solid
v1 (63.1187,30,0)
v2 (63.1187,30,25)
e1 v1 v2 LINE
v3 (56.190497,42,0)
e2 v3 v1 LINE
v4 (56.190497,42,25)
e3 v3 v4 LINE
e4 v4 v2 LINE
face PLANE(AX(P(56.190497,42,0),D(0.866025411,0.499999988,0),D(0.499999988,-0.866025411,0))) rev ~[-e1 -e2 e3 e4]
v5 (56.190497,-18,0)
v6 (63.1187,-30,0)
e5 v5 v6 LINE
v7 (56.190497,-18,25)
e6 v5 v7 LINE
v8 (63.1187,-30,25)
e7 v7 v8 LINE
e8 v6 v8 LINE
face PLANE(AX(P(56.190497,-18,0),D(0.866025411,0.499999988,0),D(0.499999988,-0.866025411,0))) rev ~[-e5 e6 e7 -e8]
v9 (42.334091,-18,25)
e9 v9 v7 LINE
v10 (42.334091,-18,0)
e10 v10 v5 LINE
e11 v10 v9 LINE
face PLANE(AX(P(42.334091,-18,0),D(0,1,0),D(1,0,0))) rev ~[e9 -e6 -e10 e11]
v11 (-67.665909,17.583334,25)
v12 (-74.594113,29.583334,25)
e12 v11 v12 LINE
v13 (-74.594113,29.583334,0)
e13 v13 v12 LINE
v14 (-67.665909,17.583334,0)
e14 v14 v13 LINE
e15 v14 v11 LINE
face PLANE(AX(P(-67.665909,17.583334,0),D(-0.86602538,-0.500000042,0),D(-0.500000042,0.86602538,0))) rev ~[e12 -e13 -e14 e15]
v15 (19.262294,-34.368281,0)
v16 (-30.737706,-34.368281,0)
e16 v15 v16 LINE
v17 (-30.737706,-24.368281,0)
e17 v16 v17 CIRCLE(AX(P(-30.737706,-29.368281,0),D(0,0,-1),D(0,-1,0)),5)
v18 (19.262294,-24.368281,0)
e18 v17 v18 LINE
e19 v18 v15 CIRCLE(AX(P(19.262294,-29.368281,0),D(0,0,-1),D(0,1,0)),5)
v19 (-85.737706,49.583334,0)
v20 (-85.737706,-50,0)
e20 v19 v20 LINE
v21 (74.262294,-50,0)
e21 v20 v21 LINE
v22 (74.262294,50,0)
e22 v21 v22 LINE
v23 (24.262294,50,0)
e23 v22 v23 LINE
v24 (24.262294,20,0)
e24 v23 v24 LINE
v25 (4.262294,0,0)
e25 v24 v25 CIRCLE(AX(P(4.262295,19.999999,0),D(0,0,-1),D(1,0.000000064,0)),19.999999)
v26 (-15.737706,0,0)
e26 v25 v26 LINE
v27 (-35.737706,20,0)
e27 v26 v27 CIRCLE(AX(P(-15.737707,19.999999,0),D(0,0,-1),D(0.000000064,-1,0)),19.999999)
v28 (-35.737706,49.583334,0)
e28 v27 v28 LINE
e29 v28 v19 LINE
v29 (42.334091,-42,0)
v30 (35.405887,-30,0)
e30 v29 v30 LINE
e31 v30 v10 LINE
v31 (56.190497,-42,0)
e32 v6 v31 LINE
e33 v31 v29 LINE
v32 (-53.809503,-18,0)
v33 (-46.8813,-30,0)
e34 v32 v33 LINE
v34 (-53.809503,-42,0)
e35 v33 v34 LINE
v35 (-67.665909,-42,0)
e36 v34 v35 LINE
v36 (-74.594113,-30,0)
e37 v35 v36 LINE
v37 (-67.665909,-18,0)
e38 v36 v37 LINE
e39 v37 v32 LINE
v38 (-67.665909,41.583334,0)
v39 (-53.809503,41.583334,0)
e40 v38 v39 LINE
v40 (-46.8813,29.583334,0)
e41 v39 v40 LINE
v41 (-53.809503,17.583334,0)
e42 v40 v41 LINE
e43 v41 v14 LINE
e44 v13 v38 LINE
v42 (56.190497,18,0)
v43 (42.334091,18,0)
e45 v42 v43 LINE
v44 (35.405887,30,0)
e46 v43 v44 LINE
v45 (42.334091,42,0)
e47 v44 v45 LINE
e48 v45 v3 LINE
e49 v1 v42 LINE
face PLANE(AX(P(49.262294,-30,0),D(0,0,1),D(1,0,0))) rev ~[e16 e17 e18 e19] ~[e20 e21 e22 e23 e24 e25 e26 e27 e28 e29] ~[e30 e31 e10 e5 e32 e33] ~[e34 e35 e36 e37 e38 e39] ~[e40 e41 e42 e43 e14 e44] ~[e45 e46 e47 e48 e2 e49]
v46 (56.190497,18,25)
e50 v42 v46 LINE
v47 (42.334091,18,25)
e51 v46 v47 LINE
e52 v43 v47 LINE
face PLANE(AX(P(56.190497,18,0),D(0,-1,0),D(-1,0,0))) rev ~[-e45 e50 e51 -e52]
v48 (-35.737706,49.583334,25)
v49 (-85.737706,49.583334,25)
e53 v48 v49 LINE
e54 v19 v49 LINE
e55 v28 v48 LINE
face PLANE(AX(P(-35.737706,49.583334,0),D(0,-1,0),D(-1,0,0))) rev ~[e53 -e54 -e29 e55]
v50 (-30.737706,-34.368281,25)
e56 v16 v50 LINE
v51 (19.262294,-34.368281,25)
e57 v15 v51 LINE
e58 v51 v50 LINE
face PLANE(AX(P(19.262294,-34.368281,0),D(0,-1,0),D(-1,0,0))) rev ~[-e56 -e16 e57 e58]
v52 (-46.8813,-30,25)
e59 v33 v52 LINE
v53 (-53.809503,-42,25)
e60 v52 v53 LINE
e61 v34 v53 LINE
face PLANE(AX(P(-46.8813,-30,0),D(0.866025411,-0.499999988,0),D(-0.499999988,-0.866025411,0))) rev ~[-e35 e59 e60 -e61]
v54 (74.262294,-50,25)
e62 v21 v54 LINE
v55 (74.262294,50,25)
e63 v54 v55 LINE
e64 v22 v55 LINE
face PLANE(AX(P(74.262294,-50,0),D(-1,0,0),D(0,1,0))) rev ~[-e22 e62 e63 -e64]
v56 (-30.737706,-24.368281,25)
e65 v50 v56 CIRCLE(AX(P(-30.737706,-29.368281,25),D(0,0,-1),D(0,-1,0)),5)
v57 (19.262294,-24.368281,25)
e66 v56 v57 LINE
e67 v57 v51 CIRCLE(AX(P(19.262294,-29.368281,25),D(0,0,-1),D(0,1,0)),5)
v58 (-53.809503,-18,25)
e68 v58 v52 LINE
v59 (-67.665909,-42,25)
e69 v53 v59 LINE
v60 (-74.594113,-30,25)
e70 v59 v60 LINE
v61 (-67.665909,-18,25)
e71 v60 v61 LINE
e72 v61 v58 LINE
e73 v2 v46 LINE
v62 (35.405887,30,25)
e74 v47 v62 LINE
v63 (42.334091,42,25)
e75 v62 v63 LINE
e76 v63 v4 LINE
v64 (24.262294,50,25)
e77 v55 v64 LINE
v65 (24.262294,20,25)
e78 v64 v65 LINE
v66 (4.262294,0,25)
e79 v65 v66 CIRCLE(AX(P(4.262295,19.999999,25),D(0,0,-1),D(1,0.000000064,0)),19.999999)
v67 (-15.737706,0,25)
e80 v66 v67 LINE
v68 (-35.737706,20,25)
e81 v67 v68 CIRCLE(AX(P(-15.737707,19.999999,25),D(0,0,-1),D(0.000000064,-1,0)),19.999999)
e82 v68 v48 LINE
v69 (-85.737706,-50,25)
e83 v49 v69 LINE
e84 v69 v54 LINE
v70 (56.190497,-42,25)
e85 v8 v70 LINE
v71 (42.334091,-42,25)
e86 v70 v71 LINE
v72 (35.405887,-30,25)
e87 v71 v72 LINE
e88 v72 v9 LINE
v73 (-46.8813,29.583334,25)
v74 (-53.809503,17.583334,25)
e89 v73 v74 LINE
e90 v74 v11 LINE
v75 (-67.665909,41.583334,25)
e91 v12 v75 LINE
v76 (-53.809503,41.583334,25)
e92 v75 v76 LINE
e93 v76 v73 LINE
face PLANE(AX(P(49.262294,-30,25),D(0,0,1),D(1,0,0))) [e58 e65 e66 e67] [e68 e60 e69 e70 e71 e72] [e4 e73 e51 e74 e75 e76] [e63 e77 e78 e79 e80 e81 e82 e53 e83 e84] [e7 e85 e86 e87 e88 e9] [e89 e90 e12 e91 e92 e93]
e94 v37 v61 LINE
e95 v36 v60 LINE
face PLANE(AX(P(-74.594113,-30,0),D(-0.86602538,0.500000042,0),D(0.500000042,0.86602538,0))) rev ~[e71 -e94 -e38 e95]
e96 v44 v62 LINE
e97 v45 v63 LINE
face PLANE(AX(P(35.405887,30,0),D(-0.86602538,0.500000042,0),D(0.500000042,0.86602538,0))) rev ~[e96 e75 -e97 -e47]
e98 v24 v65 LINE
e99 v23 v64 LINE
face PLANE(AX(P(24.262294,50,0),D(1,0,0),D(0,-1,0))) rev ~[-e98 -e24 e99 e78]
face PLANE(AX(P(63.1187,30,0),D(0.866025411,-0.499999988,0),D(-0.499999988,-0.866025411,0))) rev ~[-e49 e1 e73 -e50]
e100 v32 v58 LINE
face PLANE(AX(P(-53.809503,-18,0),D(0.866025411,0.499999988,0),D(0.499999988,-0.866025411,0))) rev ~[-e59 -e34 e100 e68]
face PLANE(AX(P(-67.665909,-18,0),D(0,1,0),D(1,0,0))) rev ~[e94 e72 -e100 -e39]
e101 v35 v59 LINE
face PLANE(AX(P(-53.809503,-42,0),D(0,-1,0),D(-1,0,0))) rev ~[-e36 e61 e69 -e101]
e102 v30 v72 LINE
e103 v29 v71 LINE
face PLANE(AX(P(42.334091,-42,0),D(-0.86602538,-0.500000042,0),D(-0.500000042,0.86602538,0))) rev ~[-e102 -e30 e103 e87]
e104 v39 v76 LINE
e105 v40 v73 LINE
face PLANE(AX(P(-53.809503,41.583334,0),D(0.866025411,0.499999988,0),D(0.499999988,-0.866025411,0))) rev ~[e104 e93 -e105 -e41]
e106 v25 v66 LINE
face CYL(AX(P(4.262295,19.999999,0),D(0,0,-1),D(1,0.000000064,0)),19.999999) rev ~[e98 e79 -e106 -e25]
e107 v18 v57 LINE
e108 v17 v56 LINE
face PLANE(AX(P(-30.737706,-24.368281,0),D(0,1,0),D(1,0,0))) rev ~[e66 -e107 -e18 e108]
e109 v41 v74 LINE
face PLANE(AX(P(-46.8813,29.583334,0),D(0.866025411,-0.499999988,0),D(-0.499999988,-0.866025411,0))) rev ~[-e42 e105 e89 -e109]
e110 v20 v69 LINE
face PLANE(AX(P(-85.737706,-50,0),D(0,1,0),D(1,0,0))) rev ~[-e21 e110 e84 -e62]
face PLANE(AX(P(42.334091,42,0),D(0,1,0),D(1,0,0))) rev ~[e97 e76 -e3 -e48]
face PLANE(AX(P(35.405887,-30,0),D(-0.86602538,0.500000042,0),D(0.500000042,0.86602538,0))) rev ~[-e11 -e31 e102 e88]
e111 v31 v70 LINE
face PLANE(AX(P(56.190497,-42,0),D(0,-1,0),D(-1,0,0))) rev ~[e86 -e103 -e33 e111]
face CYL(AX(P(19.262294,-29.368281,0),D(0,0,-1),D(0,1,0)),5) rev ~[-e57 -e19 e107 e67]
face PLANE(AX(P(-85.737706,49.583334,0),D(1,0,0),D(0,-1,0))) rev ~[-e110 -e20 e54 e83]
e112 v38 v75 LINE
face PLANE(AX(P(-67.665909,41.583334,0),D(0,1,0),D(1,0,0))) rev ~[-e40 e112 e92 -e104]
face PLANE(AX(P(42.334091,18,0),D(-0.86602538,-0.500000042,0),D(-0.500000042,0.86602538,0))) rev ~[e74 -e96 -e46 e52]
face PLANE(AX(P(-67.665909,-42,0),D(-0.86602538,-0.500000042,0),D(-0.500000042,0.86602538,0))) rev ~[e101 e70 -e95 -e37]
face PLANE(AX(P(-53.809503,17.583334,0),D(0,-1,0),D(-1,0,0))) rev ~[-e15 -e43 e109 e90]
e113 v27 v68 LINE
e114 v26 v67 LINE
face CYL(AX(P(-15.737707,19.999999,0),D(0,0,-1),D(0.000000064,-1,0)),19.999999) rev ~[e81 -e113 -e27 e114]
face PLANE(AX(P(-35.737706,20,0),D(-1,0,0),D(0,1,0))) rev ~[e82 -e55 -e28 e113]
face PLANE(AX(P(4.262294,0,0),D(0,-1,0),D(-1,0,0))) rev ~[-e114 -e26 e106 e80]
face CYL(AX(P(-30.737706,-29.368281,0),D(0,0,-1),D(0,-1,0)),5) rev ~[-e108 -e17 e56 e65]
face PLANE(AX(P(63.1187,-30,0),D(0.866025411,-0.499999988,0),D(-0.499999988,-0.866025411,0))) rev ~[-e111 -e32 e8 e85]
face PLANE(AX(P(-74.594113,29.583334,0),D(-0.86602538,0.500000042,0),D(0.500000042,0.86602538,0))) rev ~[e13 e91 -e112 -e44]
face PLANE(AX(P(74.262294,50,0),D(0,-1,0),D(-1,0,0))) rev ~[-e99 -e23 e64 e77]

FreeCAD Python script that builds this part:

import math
import FreeCAD as App
import Part
import Sketcher
from FreeCAD import Vector
Q = App.Units.Quantity


def add_polygon(sketch, points):
    """Adds a closed chain of lines whose ends are joined by coincident constraints."""
    first, n = sketch.GeometryCount, len(points)
    for a, b in zip(points, points[1:] + points[:1]):
        sketch.addGeometry(Part.LineSegment(App.Vector(*a, 0), App.Vector(*b, 0)), False)
    for i in range(n):
        sketch.addConstraint(Sketcher.Constraint("Coincident", first + i, 2, first + (i + 1) % n, 1))

doc = App.newDocument("Part")
body = doc.addObject("PartDesign::Body", "Body")

sketch1 = doc.addObject("Sketcher::SketchObject", "Sketch")
body.addObject(sketch1)
sketch1.AttachmentSupport = (doc.XY_Plane, [""])
sketch1.MapMode = "FlatFace"
sketch1.addGeometry(Part.LineSegment(Vector(-85.737706, -50, 0), Vector(74.262294, -50, 0)), False)
sketch1.addGeometry(Part.LineSegment(Vector(74.262294, -50, 0), Vector(74.262294, 50, 0)), False)
sketch1.addGeometry(Part.LineSegment(Vector(74.262294, 50, 0), Vector(24.262294, 50, 0)), False)
sketch1.addGeometry(Part.LineSegment(Vector(24.262294, 50, 0), Vector(24.262294, 20, 0)), False)
sketch1.addGeometry(Part.ArcOfCircle(Part.Circle(Vector(4.262295, 19.999999, 0), Vector(0, 0, 1), 19.999999), math.radians(-90.000004), math.radians(0.000004)), False)
sketch1.addGeometry(Part.LineSegment(Vector(4.262294, 0, 0), Vector(-15.737706, 0, 0)), False)
sketch1.addGeometry(Part.ArcOfCircle(Part.Circle(Vector(-15.737707, 19.999999, 0), Vector(0, 0, 1), 19.999999), math.radians(179.999996), math.radians(270.000004)), False)
sketch1.addGeometry(Part.LineSegment(Vector(-35.737706, 20, 0), Vector(-35.737706, 49.583334, 0)), False)
sketch1.addGeometry(Part.LineSegment(Vector(-35.737706, 49.583334, 0), Vector(-85.737706, 49.583334, 0)), False)
sketch1.addGeometry(Part.LineSegment(Vector(-85.737706, 49.583334, 0), Vector(-85.737706, -50, 0)), False)
add_polygon(sketch1, [(-53.809503, -42), (-67.665909, -42), (-74.594113, -30), (-67.665909, -18), (-53.809503, -18), (-46.8813, -30)])
sketch1.addGeometry(Part.LineSegment(Vector(19.262294, -34.368281, 0), Vector(-30.737706, -34.368281, 0)), False)
sketch1.addGeometry(Part.ArcOfCircle(Part.Circle(Vector(-30.737706, -29.368281, 0), Vector(0, 0, 1), 5), math.radians(90), math.radians(270)), False)
sketch1.addGeometry(Part.LineSegment(Vector(-30.737706, -24.368281, 0), Vector(19.262294, -24.368281, 0)), False)
sketch1.addGeometry(Part.ArcOfCircle(Part.Circle(Vector(19.262294, -29.368281, 0), Vector(0, 0, 1), 5), math.radians(-90), math.radians(90)), False)
add_polygon(sketch1, [(42.334091, -18), (56.190497, -18), (63.1187, -30), (56.190497, -42), (42.334091, -42), (35.405887, -30)])
add_polygon(sketch1, [(-74.594113, 29.583334), (-67.665909, 41.583334), (-53.809503, 41.583334), (-46.8813, 29.583334), (-53.809503, 17.583334), (-67.665909, 17.583334)])
add_polygon(sketch1, [(35.405887, 30), (42.334091, 42), (56.190497, 42), (63.1187, 30), (56.190497, 18), (42.334091, 18)])
sketch1.addConstraint([
    Sketcher.Constraint("Coincident", 0, 2, 1, 1),
    Sketcher.Constraint("Coincident", 1, 2, 2, 1),
    Sketcher.Constraint("Coincident", 2, 2, 3, 1),
    Sketcher.Constraint("Tangent", 3, 2, 4, 2),
    Sketcher.Constraint("Tangent", 4, 1, 5, 1),
    Sketcher.Constraint("Tangent", 5, 2, 6, 2),
    Sketcher.Constraint("Tangent", 6, 1, 7, 1),
    Sketcher.Constraint("Coincident", 7, 2, 8, 1),
    Sketcher.Constraint("Coincident", 8, 2, 9, 1),
    Sketcher.Constraint("Coincident", 9, 2, 0, 1),
    Sketcher.Constraint("Tangent", 16, 2, 17, 2),
    Sketcher.Constraint("Tangent", 17, 1, 18, 1),
    Sketcher.Constraint("Tangent", 18, 2, 19, 2),
    Sketcher.Constraint("Tangent", 19, 1, 16, 1),
    Sketcher.Constraint("Horizontal", 0),
    Sketcher.Constraint("Vertical", 1),
    Sketcher.Constraint("Horizontal", 2),
    Sketcher.Constraint("Vertical", 3),
    Sketcher.Constraint("Horizontal", 5),
    Sketcher.Constraint("Vertical", 7),
    Sketcher.Constraint("Horizontal", 8),
    Sketcher.Constraint("Vertical", 9),
    Sketcher.Constraint("Horizontal", 10),
    Sketcher.Constraint("Horizontal", 13),
    Sketcher.Constraint("Horizontal", 16),
    Sketcher.Constraint("Horizontal", 18),
    Sketcher.Constraint("Horizontal", 20),
    Sketcher.Constraint("Horizontal", 23),
    Sketcher.Constraint("Horizontal", 27),
    Sketcher.Constraint("Horizontal", 30),
    Sketcher.Constraint("Horizontal", 33),
    Sketcher.Constraint("Horizontal", 36),
    Sketcher.Constraint("Equal", 4, 6),
    Sketcher.Constraint("Symmetric", 23, 2, 32, 2, -1),
    Sketcher.Constraint("Symmetric", 21, 2, 34, 2, -1),
    Sketcher.Constraint("Symmetric", 20, 2, 35, 2, -1),
    Sketcher.Constraint("Symmetric", 24, 2, 37, 2, -1),
    Sketcher.Constraint("PointOnObject", 4, 1, -1),
    Sketcher.Constraint("Parallel", 11, 14),
    Sketcher.Constraint("Parallel", 12, 15),
    Sketcher.Constraint("Parallel", 14, 21),
    Sketcher.Constraint("Parallel", 15, 22),
    Sketcher.Constraint("Parallel", 21, 24),
    Sketcher.Constraint("Parallel", 22, 25),
    Sketcher.Constraint("Parallel", 25, 26),
    Sketcher.Constraint("Parallel", 24, 28),
    Sketcher.Constraint("Parallel", 26, 29),
    Sketcher.Constraint("Parallel", 28, 31),
    Sketcher.Constraint("Parallel", 29, 32),
    Sketcher.Constraint("Parallel", 31, 34),
    Sketcher.Constraint("Parallel", 34, 37),
    Sketcher.Constraint("Horizontal", 11, 2, 14, 2),
    Sketcher.Constraint("Horizontal", 13, 2, 20, 2),
    Sketcher.Constraint("Horizontal", 14, 2, 21, 2),
    Sketcher.Constraint("Horizontal", 15, 2, 22, 2),
    Sketcher.Constraint("Horizontal", 21, 2, 24, 2),
    Sketcher.Constraint("Horizontal", 28, 2, 31, 2),
    Sketcher.Constraint("Vertical", 10, 2, 12, 2),
    Sketcher.Constraint("Vertical", 12, 2, 26, 2),
    Sketcher.Constraint("Vertical", 15, 2, 27, 2),
    Sketcher.Constraint("Vertical", 14, 2, 28, 2),
    Sketcher.Constraint("Vertical", 27, 2, 29, 2),
    Sketcher.Constraint("Equal", 2, 8),
    Sketcher.Constraint("Equal", 8, 16),
    Sketcher.Constraint("Equal", 13, 20),
    Sketcher.Constraint("Radius", 4, 19.999999),
    Sketcher.Constraint("Radius", 17, 5.0),
    Sketcher.Constraint("DistanceX", 0, 1, 0, 2, 160.0),
    Sketcher.Constraint("DistanceX", 2, 2, 2, 1, 50.0),
    Sketcher.Constraint("DistanceY", 1, 1, 1, 2, 100.0),
    Sketcher.Constraint("DistanceY", 3, 2, 3, 1, 30.0),
    Sketcher.Constraint("Angle", 11, Q("120.000003 deg")),
    Sketcher.Constraint("DistanceY", 10, 2, -1, 1, 42.0),
    Sketcher.Constraint("DistanceY", 11, 2, -1, 1, 30.0),
    Sketcher.Constraint("DistanceX", 17, 3, 6, 3, 14.999999),
    Sketcher.Constraint("DistanceY", 26, 2, 8, 2, 8.0),
    Sketcher.Constraint("DistanceX", 14, 2, -1, 1, 46.8813),
    Sketcher.Constraint("DistanceX", -1, 1, 21, 2, 63.1187),
    Sketcher.Constraint("DistanceX", 10, 2, 6, 3, 51.928202),
    Sketcher.Constraint("DistanceX", 4, 3, 33, 2, 51.928202),
    Sketcher.Constraint("DistanceY", 7, 1, 7, 2, 29.583334),
    Sketcher.Constraint("DistanceY", 17, 3, -1, 1, 29.368281),
])
pad1 = doc.addObject("PartDesign::Pad", "Pad")
body.addObject(pad1)
pad1.Profile = sketch1
pad1.Length = 25

doc.recompute()
